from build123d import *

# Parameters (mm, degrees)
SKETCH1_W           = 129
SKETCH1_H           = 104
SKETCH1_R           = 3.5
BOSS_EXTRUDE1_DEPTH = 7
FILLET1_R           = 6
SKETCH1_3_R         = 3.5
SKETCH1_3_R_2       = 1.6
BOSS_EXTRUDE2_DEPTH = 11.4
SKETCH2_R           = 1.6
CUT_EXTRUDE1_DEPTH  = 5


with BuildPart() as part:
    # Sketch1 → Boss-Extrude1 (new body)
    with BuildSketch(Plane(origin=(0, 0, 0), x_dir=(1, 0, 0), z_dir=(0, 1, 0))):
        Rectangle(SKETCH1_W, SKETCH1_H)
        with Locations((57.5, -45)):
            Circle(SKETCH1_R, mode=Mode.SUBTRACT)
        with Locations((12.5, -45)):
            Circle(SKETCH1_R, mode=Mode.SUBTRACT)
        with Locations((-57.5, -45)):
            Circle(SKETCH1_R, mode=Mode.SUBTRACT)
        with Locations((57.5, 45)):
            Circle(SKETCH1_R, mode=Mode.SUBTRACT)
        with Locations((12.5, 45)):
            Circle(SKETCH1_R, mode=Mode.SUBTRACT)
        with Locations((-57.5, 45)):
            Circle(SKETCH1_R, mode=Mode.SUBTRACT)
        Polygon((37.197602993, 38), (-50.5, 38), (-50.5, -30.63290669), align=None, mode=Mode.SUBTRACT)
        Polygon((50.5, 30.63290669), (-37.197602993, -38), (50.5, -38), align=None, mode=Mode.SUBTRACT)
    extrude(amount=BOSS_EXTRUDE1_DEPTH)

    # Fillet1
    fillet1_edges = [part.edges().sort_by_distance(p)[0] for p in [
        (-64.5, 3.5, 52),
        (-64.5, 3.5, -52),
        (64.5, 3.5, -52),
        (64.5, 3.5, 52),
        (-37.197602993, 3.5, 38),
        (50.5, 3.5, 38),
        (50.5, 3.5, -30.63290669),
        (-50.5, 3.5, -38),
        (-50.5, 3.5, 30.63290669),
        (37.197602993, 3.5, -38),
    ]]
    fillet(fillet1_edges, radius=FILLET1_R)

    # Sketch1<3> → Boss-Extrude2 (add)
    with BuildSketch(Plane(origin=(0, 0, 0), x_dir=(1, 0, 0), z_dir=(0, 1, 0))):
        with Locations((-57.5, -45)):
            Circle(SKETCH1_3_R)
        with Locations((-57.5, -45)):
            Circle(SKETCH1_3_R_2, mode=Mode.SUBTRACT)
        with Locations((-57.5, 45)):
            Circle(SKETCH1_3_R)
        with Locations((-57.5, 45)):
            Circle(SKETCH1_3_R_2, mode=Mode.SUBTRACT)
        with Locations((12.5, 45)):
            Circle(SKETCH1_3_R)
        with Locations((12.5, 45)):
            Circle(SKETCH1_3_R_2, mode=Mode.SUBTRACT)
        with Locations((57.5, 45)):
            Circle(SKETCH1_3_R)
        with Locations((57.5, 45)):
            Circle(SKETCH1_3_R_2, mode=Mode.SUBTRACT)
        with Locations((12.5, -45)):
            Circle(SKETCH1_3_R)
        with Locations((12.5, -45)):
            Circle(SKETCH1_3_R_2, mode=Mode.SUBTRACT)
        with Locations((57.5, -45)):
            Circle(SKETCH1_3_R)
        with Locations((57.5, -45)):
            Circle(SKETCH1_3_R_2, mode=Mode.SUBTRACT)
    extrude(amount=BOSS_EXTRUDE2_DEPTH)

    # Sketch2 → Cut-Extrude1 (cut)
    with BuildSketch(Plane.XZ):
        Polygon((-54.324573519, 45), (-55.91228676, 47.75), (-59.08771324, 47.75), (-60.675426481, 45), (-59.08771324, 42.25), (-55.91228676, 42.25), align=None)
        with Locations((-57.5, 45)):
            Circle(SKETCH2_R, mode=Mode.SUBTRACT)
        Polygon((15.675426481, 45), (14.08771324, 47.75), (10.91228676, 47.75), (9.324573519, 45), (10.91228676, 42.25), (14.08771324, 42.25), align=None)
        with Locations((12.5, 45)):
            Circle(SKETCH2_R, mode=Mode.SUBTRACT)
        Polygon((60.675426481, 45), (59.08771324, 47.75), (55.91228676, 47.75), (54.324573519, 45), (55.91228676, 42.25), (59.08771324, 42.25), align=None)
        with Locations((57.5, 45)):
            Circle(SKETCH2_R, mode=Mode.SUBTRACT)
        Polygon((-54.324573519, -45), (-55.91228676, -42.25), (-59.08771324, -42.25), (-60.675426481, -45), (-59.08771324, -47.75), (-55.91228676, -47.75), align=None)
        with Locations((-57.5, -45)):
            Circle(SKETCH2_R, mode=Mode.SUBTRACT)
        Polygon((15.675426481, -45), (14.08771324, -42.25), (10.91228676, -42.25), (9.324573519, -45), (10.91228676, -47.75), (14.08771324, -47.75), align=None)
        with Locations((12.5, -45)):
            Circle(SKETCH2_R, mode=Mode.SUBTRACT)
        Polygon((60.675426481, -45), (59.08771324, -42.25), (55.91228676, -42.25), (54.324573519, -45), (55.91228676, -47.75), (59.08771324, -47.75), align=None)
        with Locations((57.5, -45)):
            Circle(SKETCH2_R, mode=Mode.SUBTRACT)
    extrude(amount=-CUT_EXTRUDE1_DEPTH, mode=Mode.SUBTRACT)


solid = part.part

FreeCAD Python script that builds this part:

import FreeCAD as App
import Part
import Sketcher
Q = App.Units.Quantity


def edges_at(feature, points):
    """Names of the edges that pass closest to the given points."""
    edges = feature.Shape.Edges
    near = lambda p: min(range(len(edges)), key=lambda i: edges[i].distToShape(Part.Vertex(*p))[0])
    return sorted({f"Edge{near(p) + 1}" for p in points})

doc = App.newDocument("Part")
params = doc.addObject("Spreadsheet::Sheet", "Params")
for row, (alias, value) in enumerate([
    ("sketch1_diameter", "7 mm"),
    ("sketch1_width", "129 mm"),
    ("sketch1_height", "104 mm"),
    ("pad1_length", "7 mm"),
    ("fillet_radius", "6 mm"),
    ("sketch2_diameter", "7 mm"),
    ("sketch2_diameter2", "3.2 mm"),
    ("pad2_length", "11.4 mm"),
    ("sketch3_diameter", "3.2 mm"),
    ("pocket1_length", "5 mm"),
], start=1):
    params.set(f"A{row}", alias)
    params.set(f"B{row}", "=" + value)
    params.setAlias(f"B{row}", alias)

body = doc.addObject("PartDesign::Body", "Body")

sketch1 = body.newObject("Sketcher::SketchObject", "Sketch")
sketch1.AttachmentSupport = (doc.getObject("XZ_Plane"), [""])
sketch1.MapMode = "FlatFace"
sketch1.addGeometry(Part.LineSegment(App.Vector(-64.5, -52, 0), App.Vector(-64.5, 52, 0)), False)
sketch1.addGeometry(Part.LineSegment(App.Vector(-64.5, 52, 0), App.Vector(64.5, 52, 0)), False)
sketch1.addGeometry(Part.LineSegment(App.Vector(64.5, 52, 0), App.Vector(64.5, -52, 0)), False)
sketch1.addGeometry(Part.LineSegment(App.Vector(64.5, -52, 0), App.Vector(-64.5, -52, 0)), False)
sketch1.addGeometry(Part.Circle(App.Vector(-57.5, 45, 0), App.Vector(0, 0, 1), 3.5), False)
sketch1.addGeometry(Part.Circle(App.Vector(12.5, 45, 0), App.Vector(0, 0, 1), 3.5), False)
sketch1.addGeometry(Part.Circle(App.Vector(57.5, 45, 0), App.Vector(0, 0, 1), 3.5), False)
sketch1.addGeometry(Part.LineSegment(App.Vector(-37.197603, 38, 0), App.Vector(50.5, -30.632907, 0)), False)
sketch1.addGeometry(Part.LineSegment(App.Vector(50.5, -30.632907, 0), App.Vector(50.5, 38, 0)), False)
sketch1.addGeometry(Part.LineSegment(App.Vector(50.5, 38, 0), App.Vector(-37.197603, 38, 0)), False)
sketch1.addGeometry(Part.LineSegment(App.Vector(-50.5, -38, 0), App.Vector(37.197603, -38, 0)), False)
sketch1.addGeometry(Part.LineSegment(App.Vector(37.197603, -38, 0), App.Vector(-50.5, 30.632907, 0)), False)
sketch1.addGeometry(Part.LineSegment(App.Vector(-50.5, 30.632907, 0), App.Vector(-50.5, -38, 0)), False)
sketch1.addGeometry(Part.Circle(App.Vector(-57.5, -45, 0), App.Vector(0, 0, 1), 3.5), False)
sketch1.addGeometry(Part.Circle(App.Vector(12.5, -45, 0), App.Vector(0, 0, 1), 3.5), False)
sketch1.addGeometry(Part.Circle(App.Vector(57.5, -45, 0), App.Vector(0, 0, 1), 3.5), False)
sketch1.addConstraint(Sketcher.Constraint("Coincident", 0, 2, 1, 1))
sketch1.addConstraint(Sketcher.Constraint("Coincident", 1, 2, 2, 1))
sketch1.addConstraint(Sketcher.Constraint("Coincident", 2, 2, 3, 1))
sketch1.addConstraint(Sketcher.Constraint("Coincident", 3, 2, 0, 1))
sketch1.addConstraint(Sketcher.Constraint("Coincident", 7, 2, 8, 1))
sketch1.addConstraint(Sketcher.Constraint("Coincident", 8, 2, 9, 1))
sketch1.addConstraint(Sketcher.Constraint("Coincident", 9, 2, 7, 1))
sketch1.addConstraint(Sketcher.Constraint("Coincident", 10, 2, 11, 1))
sketch1.addConstraint(Sketcher.Constraint("Coincident", 11, 2, 12, 1))
sketch1.addConstraint(Sketcher.Constraint("Coincident", 12, 2, 10, 1))
sketch1.addConstraint(Sketcher.Constraint("Vertical", 0))
sketch1.addConstraint(Sketcher.Constraint("Horizontal", 1))
sketch1.addConstraint(Sketcher.Constraint("Vertical", 2))
sketch1.addConstraint(Sketcher.Constraint("Horizontal", 3))
sketch1.addConstraint(Sketcher.Constraint("Vertical", 8))
sketch1.addConstraint(Sketcher.Constraint("Horizontal", 9))
sketch1.addConstraint(Sketcher.Constraint("Horizontal", 10))
sketch1.addConstraint(Sketcher.Constraint("Vertical", 12))
sketch1.addConstraint(Sketcher.Constraint("Equal", 4, 5))
sketch1.addConstraint(Sketcher.Constraint("Equal", 5, 6))
sketch1.addConstraint(Sketcher.Constraint("Equal", 6, 13))
sketch1.addConstraint(Sketcher.Constraint("Equal", 13, 14))
sketch1.addConstraint(Sketcher.Constraint("Equal", 14, 15))
sketch1.addConstraint(Sketcher.Constraint("Symmetric", 6, 3, 13, 3, -1, 1))
sketch1.addConstraint(Sketcher.Constraint("Symmetric", 4, 3, 15, 3, -1, 1))
sketch1.addConstraint(Sketcher.Constraint("Symmetric", 0, 2, 2, 2, -1, 1))
sketch1.addConstraint(Sketcher.Constraint("Symmetric", 9, 2, 10, 2, -1, 1))
sketch1.addConstraint(Sketcher.Constraint("Symmetric", 7, 2, 11, 2, -1, 1))
sketch1.addConstraint(Sketcher.Constraint("Symmetric", 4, 3, 6, 3, -2))
sketch1.addConstraint(Sketcher.Constraint("Symmetric", 5, 3, 14, 3, -1))
sketch1.addConstraint(Sketcher.Constraint("Horizontal", 4, 3, 5, 3))
sketch1.addConstraint(Sketcher.Constraint("Diameter", 4, 7.0))
sketch1.addConstraint(Sketcher.Constraint("DistanceX", 1, 1, 1, 2, 129.0))
sketch1.addConstraint(Sketcher.Constraint("DistanceY", 0, 1, 0, 2, 104.0))
sketch1.addConstraint(Sketcher.Constraint("DistanceY", -1, 1, 4, 3, 45.0))
sketch1.addConstraint(Sketcher.Constraint("DistanceY", -1, 1, 8, 2, 38.0))
sketch1.addConstraint(Sketcher.Constraint("DistanceX", 4, 3, 5, 3, 70.0))
sketch1.addConstraint(Sketcher.Constraint("DistanceX", 5, 3, 6, 3, 45.0))
sketch1.addConstraint(Sketcher.Constraint("DistanceX", 7, 2, 15, 3, 7.0))
sketch1.addConstraint(Sketcher.Constraint("Distance", 7, 111.361328))
sketch1.addConstraint(Sketcher.Constraint("DistanceX", 9, 2, 9, 1, 87.697603))
sketch1.setExpression("Constraints[31]", "Params.sketch1_diameter")
sketch1.setExpression("Constraints[32]", "Params.sketch1_width")
sketch1.setExpression("Constraints[33]", "Params.sketch1_height")
pad1 = body.newObject("PartDesign::Pad", "Pad")
pad1.Profile = sketch1
pad1.setExpression("Length", "Params.pad1_length")
pad1.Reversed = True
doc.recompute()

fillet = body.newObject("PartDesign::Fillet", "Fillet")
fillet.Base = (pad1, edges_at(pad1, [
    (-64.5, 3.5, 52),
    (-64.5, 3.5, -52),
    (64.5, 3.5, -52),
    (64.5, 3.5, 52),
    (-37.198, 3.5, 38),
    (50.5, 3.5, 38),
    (50.5, 3.5, -30.633),
    (-50.5, 3.5, -38),
    (-50.5, 3.5, 30.633),
    (37.198, 3.5, -38),
]))
fillet.setExpression("Radius", "Params.fillet_radius")

sketch2 = body.newObject("Sketcher::SketchObject", "Sketch001")
sketch2.AttachmentSupport = (doc.getObject("XZ_Plane"), [""])
sketch2.MapMode = "FlatFace"
sketch2.addGeometry(Part.Circle(App.Vector(-57.5, 45, 0), App.Vector(0, 0, 1), 3.5), False)
sketch2.addGeometry(Part.Circle(App.Vector(-57.5, 45, 0), App.Vector(0, 0, 1), 1.6), False)
sketch2.addGeometry(Part.Circle(App.Vector(-57.5, -45, 0), App.Vector(0, 0, 1), 3.5), False)
sketch2.addGeometry(Part.Circle(App.Vector(-57.5, -45, 0), App.Vector(0, 0, 1), 1.6), False)
sketch2.addGeometry(Part.Circle(App.Vector(12.5, -45, 0), App.Vector(0, 0, 1), 3.5), False)
sketch2.addGeometry(Part.Circle(App.Vector(12.5, -45, 0), App.Vector(0, 0, 1), 1.6), False)
sketch2.addGeometry(Part.Circle(App.Vector(57.5, -45, 0), App.Vector(0, 0, 1), 3.5), False)
sketch2.addGeometry(Part.Circle(App.Vector(57.5, -45, 0), App.Vector(0, 0, 1), 1.6), False)
sketch2.addGeometry(Part.Circle(App.Vector(12.5, 45, 0), App.Vector(0, 0, 1), 3.5), False)
sketch2.addGeometry(Part.Circle(App.Vector(12.5, 45, 0), App.Vector(0, 0, 1), 1.6), False)
sketch2.addGeometry(Part.Circle(App.Vector(57.5, 45, 0), App.Vector(0, 0, 1), 3.5), False)
sketch2.addGeometry(Part.Circle(App.Vector(57.5, 45, 0), App.Vector(0, 0, 1), 1.6), False)
sketch2.addConstraint(Sketcher.Constraint("Coincident", 1, 3, 0, 3))
sketch2.addConstraint(Sketcher.Constraint("Coincident", 3, 3, 2, 3))
sketch2.addConstraint(Sketcher.Constraint("Coincident", 5, 3, 4, 3))
sketch2.addConstraint(Sketcher.Constraint("Coincident", 7, 3, 6, 3))
sketch2.addConstraint(Sketcher.Constraint("Coincident", 9, 3, 8, 3))
sketch2.addConstraint(Sketcher.Constraint("Coincident", 11, 3, 10, 3))
sketch2.addConstraint(Sketcher.Constraint("Equal", 0, 2))
sketch2.addConstraint(Sketcher.Constraint("Equal", 1, 3))
sketch2.addConstraint(Sketcher.Constraint("Equal", 2, 4))
sketch2.addConstraint(Sketcher.Constraint("Equal", 3, 5))
sketch2.addConstraint(Sketcher.Constraint("Equal", 4, 6))
sketch2.addConstraint(Sketcher.Constraint("Equal", 5, 7))
sketch2.addConstraint(Sketcher.Constraint("Equal", 6, 8))
sketch2.addConstraint(Sketcher.Constraint("Equal", 7, 9))
sketch2.addConstraint(Sketcher.Constraint("Equal", 8, 10))
sketch2.addConstraint(Sketcher.Constraint("Equal", 9, 11))
sketch2.addConstraint(Sketcher.Constraint("Symmetric", 0, 3, 6, 3, -1, 1))
sketch2.addConstraint(Sketcher.Constraint("Symmetric", 2, 3, 10, 3, -1, 1))
sketch2.addConstraint(Sketcher.Constraint("Symmetric", 2, 3, 6, 3, -2))
sketch2.addConstraint(Sketcher.Constraint("Symmetric", 4, 3, 8, 3, -1))
sketch2.addConstraint(Sketcher.Constraint("Horizontal", 3, 3, 4, 3))
sketch2.addConstraint(Sketcher.Constraint("Diameter", 0, 7.0))
sketch2.addConstraint(Sketcher.Constraint("Diameter", 1, 3.2))
sketch2.addConstraint(Sketcher.Constraint("DistanceY", -1, 1, 0, 3, 45.0))
sketch2.addConstraint(Sketcher.Constraint("DistanceX", 2, 3, 4, 3, 70.0))
sketch2.addConstraint(Sketcher.Constraint("DistanceX", 4, 3, 6, 3, 45.0))
sketch2.setExpression("Constraints[21]", "Params.sketch2_diameter")
sketch2.setExpression("Constraints[22]", "Params.sketch2_diameter2")
pad2 = body.newObject("PartDesign::Pad", "Pad001")
pad2.Profile = sketch2
pad2.setExpression("Length", "Params.pad2_length")
pad2.Reversed = True

sketch3 = body.newObject("Sketcher::SketchObject", "Sketch002")
sketch3.AttachmentSupport = (doc.getObject("XZ_Plane"), [""])
sketch3.MapMode = "FlatFace"
sketch3.addGeometry(Part.LineSegment(App.Vector(-54.324574, 45, 0), App.Vector(-55.912287, 47.75, 0)), False)
sketch3.addGeometry(Part.LineSegment(App.Vector(-55.912287, 47.75, 0), App.Vector(-59.087713, 47.75, 0)), False)
sketch3.addGeometry(Part.LineSegment(App.Vector(-59.087713, 47.75, 0), App.Vector(-60.675426, 45, 0)), False)
sketch3.addGeometry(Part.LineSegment(App.Vector(-60.675426, 45, 0), App.Vector(-59.087713, 42.25, 0)), False)
sketch3.addGeometry(Part.LineSegment(App.Vector(-59.087713, 42.25, 0), App.Vector(-55.912287, 42.25, 0)), False)
sketch3.addGeometry(Part.LineSegment(App.Vector(-55.912287, 42.25, 0), App.Vector(-54.324574, 45, 0)), False)
sketch3.addGeometry(Part.Circle(App.Vector(-57.5, 45, 0), App.Vector(0, 0, 1), 1.6), False)
sketch3.addGeometry(Part.LineSegment(App.Vector(15.675426, 45, 0), App.Vector(14.087713, 47.75, 0)), False)
sketch3.addGeometry(Part.LineSegment(App.Vector(14.087713, 47.75, 0), App.Vector(10.912287, 47.75, 0)), False)
sketch3.addGeometry(Part.LineSegment(App.Vector(10.912287, 47.75, 0), App.Vector(9.324574, 45, 0)), False)
sketch3.addGeometry(Part.LineSegment(App.Vector(9.324574, 45, 0), App.Vector(10.912287, 42.25, 0)), False)
sketch3.addGeometry(Part.LineSegment(App.Vector(10.912287, 42.25, 0), App.Vector(14.087713, 42.25, 0)), False)
sketch3.addGeometry(Part.LineSegment(App.Vector(14.087713, 42.25, 0), App.Vector(15.675426, 45, 0)), False)
sketch3.addGeometry(Part.Circle(App.Vector(12.5, 45, 0), App.Vector(0, 0, 1), 1.6), False)
sketch3.addGeometry(Part.LineSegment(App.Vector(60.675426, 45, 0), App.Vector(59.087713, 47.75, 0)), False)
sketch3.addGeometry(Part.LineSegment(App.Vector(59.087713, 47.75, 0), App.Vector(55.912287, 47.75, 0)), False)
sketch3.addGeometry(Part.LineSegment(App.Vector(55.912287, 47.75, 0), App.Vector(54.324574, 45, 0)), False)
sketch3.addGeometry(Part.LineSegment(App.Vector(54.324574, 45, 0), App.Vector(55.912287, 42.25, 0)), False)
sketch3.addGeometry(Part.LineSegment(App.Vector(55.912287, 42.25, 0), App.Vector(59.087713, 42.25, 0)), False)
sketch3.addGeometry(Part.LineSegment(App.Vector(59.087713, 42.25, 0), App.Vector(60.675426, 45, 0)), False)
sketch3.addGeometry(Part.Circle(App.Vector(57.5, 45, 0), App.Vector(0, 0, 1), 1.6), False)
sketch3.addGeometry(Part.LineSegment(App.Vector(-54.324574, -45, 0), App.Vector(-55.912287, -42.25, 0)), False)
sketch3.addGeometry(Part.LineSegment(App.Vector(-55.912287, -42.25, 0), App.Vector(-59.087713, -42.25, 0)), False)
sketch3.addGeometry(Part.LineSegment(App.Vector(-59.087713, -42.25, 0), App.Vector(-60.675426, -45, 0)), False)
sketch3.addGeometry(Part.LineSegment(App.Vector(-60.675426, -45, 0), App.Vector(-59.087713, -47.75, 0)), False)
sketch3.addGeometry(Part.LineSegment(App.Vector(-59.087713, -47.75, 0), App.Vector(-55.912287, -47.75, 0)), False)
sketch3.addGeometry(Part.LineSegment(App.Vector(-55.912287, -47.75, 0), App.Vector(-54.324574, -45, 0)), False)
sketch3.addGeometry(Part.Circle(App.Vector(-57.5, -45, 0), App.Vector(0, 0, 1), 1.6), False)
sketch3.addGeometry(Part.LineSegment(App.Vector(15.675426, -45, 0), App.Vector(14.087713, -42.25, 0)), False)
sketch3.addGeometry(Part.LineSegment(App.Vector(14.087713, -42.25, 0), App.Vector(10.912287, -42.25, 0)), False)
sketch3.addGeometry(Part.LineSegment(App.Vector(10.912287, -42.25, 0), App.Vector(9.324574, -45, 0)), False)
sketch3.addGeometry(Part.LineSegment(App.Vector(9.324574, -45, 0), App.Vector(10.912287, -47.75, 0)), False)
sketch3.addGeometry(Part.LineSegment(App.Vector(10.912287, -47.75, 0), App.Vector(14.087713, -47.75, 0)), False)
sketch3.addGeometry(Part.LineSegment(App.Vector(14.087713, -47.75, 0), App.Vector(15.675426, -45, 0)), False)
sketch3.addGeometry(Part.Circle(App.Vector(12.5, -45, 0), App.Vector(0, 0, 1), 1.6), False)
sketch3.addGeometry(Part.LineSegment(App.Vector(60.675426, -45, 0), App.Vector(59.087713, -42.25, 0)), False)
sketch3.addGeometry(Part.LineSegment(App.Vector(59.087713, -42.25, 0), App.Vector(55.912287, -42.25, 0)), False)
sketch3.addGeometry(Part.LineSegment(App.Vector(55.912287, -42.25, 0), App.Vector(54.324574, -45, 0)), False)
sketch3.addGeometry(Part.LineSegment(App.Vector(54.324574, -45, 0), App.Vector(55.912287, -47.75, 0)), False)
sketch3.addGeometry(Part.LineSegment(App.Vector(55.912287, -47.75, 0), App.Vector(59.087713, -47.75, 0)), False)
sketch3.addGeometry(Part.LineSegment(App.Vector(59.087713, -47.75, 0), App.Vector(60.675426, -45, 0)), False)
sketch3.addGeometry(Part.Circle(App.Vector(57.5, -45, 0), App.Vector(0, 0, 1), 1.6), False)
sketch3.addConstraint(Sketcher.Constraint("Coincident", 0, 2, 1, 1))
sketch3.addConstraint(Sketcher.Constraint("Coincident", 1, 2, 2, 1))
sketch3.addConstraint(Sketcher.Constraint("Coincident", 2, 2, 3, 1))
sketch3.addConstraint(Sketcher.Constraint("Coincident", 3, 2, 4, 1))
sketch3.addConstraint(Sketcher.Constraint("Coincident", 4, 2, 5, 1))
sketch3.addConstraint(Sketcher.Constraint("Coincident", 5, 2, 0, 1))
sketch3.addConstraint(Sketcher.Constraint("Coincident", 7, 2, 8, 1))
sketch3.addConstraint(Sketcher.Constraint("Coincident", 8, 2, 9, 1))
sketch3.addConstraint(Sketcher.Constraint("Coincident", 9, 2, 10, 1))
sketch3.addConstraint(Sketcher.Constraint("Coincident", 10, 2, 11, 1))
sketch3.addConstraint(Sketcher.Constraint("Coincident", 11, 2, 12, 1))
sketch3.addConstraint(Sketcher.Constraint("Coincident", 12, 2, 7, 1))
sketch3.addConstraint(Sketcher.Constraint("Coincident", 14, 2, 15, 1))
sketch3.addConstraint(Sketcher.Constraint("Coincident", 15, 2, 16, 1))
sketch3.addConstraint(Sketcher.Constraint("Coincident", 16, 2, 17, 1))
sketch3.addConstraint(Sketcher.Constraint("Coincident", 17, 2, 18, 1))
sketch3.addConstraint(Sketcher.Constraint("Coincident", 18, 2, 19, 1))
sketch3.addConstraint(Sketcher.Constraint("Coincident", 19, 2, 14, 1))
sketch3.addConstraint(Sketcher.Constraint("Coincident", 21, 2, 22, 1))
sketch3.addConstraint(Sketcher.Constraint("Coincident", 22, 2, 23, 1))
sketch3.addConstraint(Sketcher.Constraint("Coincident", 23, 2, 24, 1))
sketch3.addConstraint(Sketcher.Constraint("Coincident", 24, 2, 25, 1))
sketch3.addConstraint(Sketcher.Constraint("Coincident", 25, 2, 26, 1))
sketch3.addConstraint(Sketcher.Constraint("Coincident", 26, 2, 21, 1))
sketch3.addConstraint(Sketcher.Constraint("Coincident", 28, 2, 29, 1))
sketch3.addConstraint(Sketcher.Constraint("Coincident", 29, 2, 30, 1))
sketch3.addConstraint(Sketcher.Constraint("Coincident", 30, 2, 31, 1))
sketch3.addConstraint(Sketcher.Constraint("Coincident", 31, 2, 32, 1))
sketch3.addConstraint(Sketcher.Constraint("Coincident", 32, 2, 33, 1))
sketch3.addConstraint(Sketcher.Constraint("Coincident", 33, 2, 28, 1))
sketch3.addConstraint(Sketcher.Constraint("Coincident", 35, 2, 36, 1))
sketch3.addConstraint(Sketcher.Constraint("Coincident", 36, 2, 37, 1))
sketch3.addConstraint(Sketcher.Constraint("Coincident", 37, 2, 38, 1))
sketch3.addConstraint(Sketcher.Constraint("Coincident", 38, 2, 39, 1))
sketch3.addConstraint(Sketcher.Constraint("Coincident", 39, 2, 40, 1))
sketch3.addConstraint(Sketcher.Constraint("Coincident", 40, 2, 35, 1))
sketch3.addConstraint(Sketcher.Constraint("Horizontal", 1))
sketch3.addConstraint(Sketcher.Constraint("Horizontal", 4))
sketch3.addConstraint(Sketcher.Constraint("Horizontal", 8))
sketch3.addConstraint(Sketcher.Constraint("Horizontal", 11))
sketch3.addConstraint(Sketcher.Constraint("Horizontal", 15))
sketch3.addConstraint(Sketcher.Constraint("Horizontal", 18))
sketch3.addConstraint(Sketcher.Constraint("Horizontal", 22))
sketch3.addConstraint(Sketcher.Constraint("Horizontal", 25))
sketch3.addConstraint(Sketcher.Constraint("Horizontal", 29))
sketch3.addConstraint(Sketcher.Constraint("Horizontal", 32))
sketch3.addConstraint(Sketcher.Constraint("Horizontal", 36))
sketch3.addConstraint(Sketcher.Constraint("Horizontal", 39))
sketch3.addConstraint(Sketcher.Constraint("Equal", 6, 13))
sketch3.addConstraint(Sketcher.Constraint("Equal", 13, 20))
sketch3.addConstraint(Sketcher.Constraint("Equal", 20, 27))
sketch3.addConstraint(Sketcher.Constraint("Equal", 27, 34))
sketch3.addConstraint(Sketcher.Constraint("Equal", 34, 41))
sketch3.addConstraint(Sketcher.Constraint("Symmetric", 20, 3, 27, 3, -1, 1))
sketch3.addConstraint(Sketcher.Constraint("Symmetric", 6, 3, 41, 3, -1, 1))
sketch3.addConstraint(Sketcher.Constraint("Symmetric", 17, 2, 21, 2, -1, 1))
sketch3.addConstraint(Sketcher.Constraint("Symmetric", 19, 2, 23, 2, -1, 1))
sketch3.addConstraint(Sketcher.Constraint("Symmetric", 14, 2, 24, 2, -1, 1))
sketch3.addConstraint(Sketcher.Constraint("Symmetric", 16, 2, 26, 2, -1, 1))
sketch3.addConstraint(Sketcher.Constraint("Symmetric", 3, 2, 35, 2, -1, 1))
sketch3.addConstraint(Sketcher.Constraint("Symmetric", 5, 2, 37, 2, -1, 1))
sketch3.addConstraint(Sketcher.Constraint("Symmetric", 0, 2, 38, 2, -1, 1))
sketch3.addConstraint(Sketcher.Constraint("Symmetric", 2, 2, 40, 2, -1, 1))
sketch3.addConstraint(Sketcher.Constraint("Symmetric", 6, 3, 20, 3, -2))
sketch3.addConstraint(Sketcher.Constraint("Symmetric", 1, 2, 14, 2, -2))
sketch3.addConstraint(Sketcher.Constraint("Symmetric", 5, 2, 16, 2, -2))
sketch3.addConstraint(Sketcher.Constraint("Symmetric", 4, 2, 17, 2, -2))
sketch3.addConstraint(Sketcher.Constraint("Symmetric", 2, 2, 19, 2, -2))
sketch3.addConstraint(Sketcher.Constraint("Symmetric", 13, 3, 34, 3, -1))
sketch3.addConstraint(Sketcher.Constraint("Symmetric", 11, 2, 28, 2, -1))
sketch3.addConstraint(Sketcher.Constraint("Symmetric", 9, 2, 30, 2, -1))
sketch3.addConstraint(Sketcher.Constraint("Symmetric", 8, 2, 31, 2, -1))
sketch3.addConstraint(Sketcher.Constraint("Symmetric", 12, 2, 33, 2, -1))
sketch3.addConstraint(Sketcher.Constraint("Parallel", 0, 3))
sketch3.addConstraint(Sketcher.Constraint("Parallel", 2, 5))
sketch3.addConstraint(Sketcher.Constraint("Parallel", 3, 7))
sketch3.addConstraint(Sketcher.Constraint("Parallel", 5, 9))
sketch3.addConstraint(Sketcher.Constraint("Parallel", 7, 10))
sketch3.addConstraint(Sketcher.Constraint("Parallel", 9, 12))
sketch3.addConstraint(Sketcher.Constraint("Parallel", 10, 14))
sketch3.addConstraint(Sketcher.Constraint("Parallel", 12, 16))
sketch3.addConstraint(Sketcher.Constraint("Parallel", 16, 19))
sketch3.addConstraint(Sketcher.Constraint("Parallel", 19, 23))
sketch3.addConstraint(Sketcher.Constraint("Parallel", 23, 26))
sketch3.addConstraint(Sketcher.Constraint("Parallel", 26, 30))
sketch3.addConstraint(Sketcher.Constraint("Parallel", 30, 33))
sketch3.addConstraint(Sketcher.Constraint("Parallel", 33, 37))
sketch3.addConstraint(Sketcher.Constraint("Parallel", 37, 40))
sketch3.addConstraint(Sketcher.Constraint("Horizontal", 6, 3, 13, 3))
sketch3.addConstraint(Sketcher.Constraint("Horizontal", 20, 3, 2, 2))
sketch3.addConstraint(Sketcher.Constraint("Horizontal", 2, 2, 5, 2))
sketch3.addConstraint(Sketcher.Constraint("Horizontal", 1, 2, 7, 2))
sketch3.addConstraint(Sketcher.Constraint("Horizontal", 5, 2, 9, 2))
sketch3.addConstraint(Sketcher.Constraint("Horizontal", 4, 2, 10, 2))
sketch3.addConstraint(Sketcher.Constraint("Horizontal", 9, 2, 12, 2))
sketch3.addConstraint(Sketcher.Constraint("Vertical", 1, 2, 3, 2))
sketch3.addConstraint(Sketcher.Constraint("Equal", 4, 8))
sketch3.addConstraint(Sketcher.Constraint("Diameter", 6, 3.2))
sketch3.addConstraint(Sketcher.Constraint("Angle", 0, Q("120 deg")))
sketch3.addConstraint(Sketcher.Constraint("DistanceY", -1, 1, 6, 3, 45.0))
sketch3.addConstraint(Sketcher.Constraint("DistanceX", 6, 3, 13, 3, 70.0))
sketch3.addConstraint(Sketcher.Constraint("DistanceX", 13, 3, 20, 3, 45.0))
sketch3.addConstraint(Sketcher.Constraint("DistanceX", 0, 2, 7, 2, 70.0))
sketch3.addConstraint(Sketcher.Constraint("DistanceX", 7, 2, 14, 2, 45.0))
sketch3.addConstraint(Sketcher.Constraint("DistanceY", 3, 2, 1, 2, 5.5))
sketch3.addConstraint(Sketcher.Constraint("DistanceX", 1, 2, 1, 1, 3.175426))
sketch3.setExpression("Constraints[97]", "Params.sketch3_diameter")
pocket1 = body.newObject("PartDesign::Pocket", "Pocket")
pocket1.Profile = sketch3
pocket1.setExpression("Length", "Params.pocket1_length")

doc.recompute()
